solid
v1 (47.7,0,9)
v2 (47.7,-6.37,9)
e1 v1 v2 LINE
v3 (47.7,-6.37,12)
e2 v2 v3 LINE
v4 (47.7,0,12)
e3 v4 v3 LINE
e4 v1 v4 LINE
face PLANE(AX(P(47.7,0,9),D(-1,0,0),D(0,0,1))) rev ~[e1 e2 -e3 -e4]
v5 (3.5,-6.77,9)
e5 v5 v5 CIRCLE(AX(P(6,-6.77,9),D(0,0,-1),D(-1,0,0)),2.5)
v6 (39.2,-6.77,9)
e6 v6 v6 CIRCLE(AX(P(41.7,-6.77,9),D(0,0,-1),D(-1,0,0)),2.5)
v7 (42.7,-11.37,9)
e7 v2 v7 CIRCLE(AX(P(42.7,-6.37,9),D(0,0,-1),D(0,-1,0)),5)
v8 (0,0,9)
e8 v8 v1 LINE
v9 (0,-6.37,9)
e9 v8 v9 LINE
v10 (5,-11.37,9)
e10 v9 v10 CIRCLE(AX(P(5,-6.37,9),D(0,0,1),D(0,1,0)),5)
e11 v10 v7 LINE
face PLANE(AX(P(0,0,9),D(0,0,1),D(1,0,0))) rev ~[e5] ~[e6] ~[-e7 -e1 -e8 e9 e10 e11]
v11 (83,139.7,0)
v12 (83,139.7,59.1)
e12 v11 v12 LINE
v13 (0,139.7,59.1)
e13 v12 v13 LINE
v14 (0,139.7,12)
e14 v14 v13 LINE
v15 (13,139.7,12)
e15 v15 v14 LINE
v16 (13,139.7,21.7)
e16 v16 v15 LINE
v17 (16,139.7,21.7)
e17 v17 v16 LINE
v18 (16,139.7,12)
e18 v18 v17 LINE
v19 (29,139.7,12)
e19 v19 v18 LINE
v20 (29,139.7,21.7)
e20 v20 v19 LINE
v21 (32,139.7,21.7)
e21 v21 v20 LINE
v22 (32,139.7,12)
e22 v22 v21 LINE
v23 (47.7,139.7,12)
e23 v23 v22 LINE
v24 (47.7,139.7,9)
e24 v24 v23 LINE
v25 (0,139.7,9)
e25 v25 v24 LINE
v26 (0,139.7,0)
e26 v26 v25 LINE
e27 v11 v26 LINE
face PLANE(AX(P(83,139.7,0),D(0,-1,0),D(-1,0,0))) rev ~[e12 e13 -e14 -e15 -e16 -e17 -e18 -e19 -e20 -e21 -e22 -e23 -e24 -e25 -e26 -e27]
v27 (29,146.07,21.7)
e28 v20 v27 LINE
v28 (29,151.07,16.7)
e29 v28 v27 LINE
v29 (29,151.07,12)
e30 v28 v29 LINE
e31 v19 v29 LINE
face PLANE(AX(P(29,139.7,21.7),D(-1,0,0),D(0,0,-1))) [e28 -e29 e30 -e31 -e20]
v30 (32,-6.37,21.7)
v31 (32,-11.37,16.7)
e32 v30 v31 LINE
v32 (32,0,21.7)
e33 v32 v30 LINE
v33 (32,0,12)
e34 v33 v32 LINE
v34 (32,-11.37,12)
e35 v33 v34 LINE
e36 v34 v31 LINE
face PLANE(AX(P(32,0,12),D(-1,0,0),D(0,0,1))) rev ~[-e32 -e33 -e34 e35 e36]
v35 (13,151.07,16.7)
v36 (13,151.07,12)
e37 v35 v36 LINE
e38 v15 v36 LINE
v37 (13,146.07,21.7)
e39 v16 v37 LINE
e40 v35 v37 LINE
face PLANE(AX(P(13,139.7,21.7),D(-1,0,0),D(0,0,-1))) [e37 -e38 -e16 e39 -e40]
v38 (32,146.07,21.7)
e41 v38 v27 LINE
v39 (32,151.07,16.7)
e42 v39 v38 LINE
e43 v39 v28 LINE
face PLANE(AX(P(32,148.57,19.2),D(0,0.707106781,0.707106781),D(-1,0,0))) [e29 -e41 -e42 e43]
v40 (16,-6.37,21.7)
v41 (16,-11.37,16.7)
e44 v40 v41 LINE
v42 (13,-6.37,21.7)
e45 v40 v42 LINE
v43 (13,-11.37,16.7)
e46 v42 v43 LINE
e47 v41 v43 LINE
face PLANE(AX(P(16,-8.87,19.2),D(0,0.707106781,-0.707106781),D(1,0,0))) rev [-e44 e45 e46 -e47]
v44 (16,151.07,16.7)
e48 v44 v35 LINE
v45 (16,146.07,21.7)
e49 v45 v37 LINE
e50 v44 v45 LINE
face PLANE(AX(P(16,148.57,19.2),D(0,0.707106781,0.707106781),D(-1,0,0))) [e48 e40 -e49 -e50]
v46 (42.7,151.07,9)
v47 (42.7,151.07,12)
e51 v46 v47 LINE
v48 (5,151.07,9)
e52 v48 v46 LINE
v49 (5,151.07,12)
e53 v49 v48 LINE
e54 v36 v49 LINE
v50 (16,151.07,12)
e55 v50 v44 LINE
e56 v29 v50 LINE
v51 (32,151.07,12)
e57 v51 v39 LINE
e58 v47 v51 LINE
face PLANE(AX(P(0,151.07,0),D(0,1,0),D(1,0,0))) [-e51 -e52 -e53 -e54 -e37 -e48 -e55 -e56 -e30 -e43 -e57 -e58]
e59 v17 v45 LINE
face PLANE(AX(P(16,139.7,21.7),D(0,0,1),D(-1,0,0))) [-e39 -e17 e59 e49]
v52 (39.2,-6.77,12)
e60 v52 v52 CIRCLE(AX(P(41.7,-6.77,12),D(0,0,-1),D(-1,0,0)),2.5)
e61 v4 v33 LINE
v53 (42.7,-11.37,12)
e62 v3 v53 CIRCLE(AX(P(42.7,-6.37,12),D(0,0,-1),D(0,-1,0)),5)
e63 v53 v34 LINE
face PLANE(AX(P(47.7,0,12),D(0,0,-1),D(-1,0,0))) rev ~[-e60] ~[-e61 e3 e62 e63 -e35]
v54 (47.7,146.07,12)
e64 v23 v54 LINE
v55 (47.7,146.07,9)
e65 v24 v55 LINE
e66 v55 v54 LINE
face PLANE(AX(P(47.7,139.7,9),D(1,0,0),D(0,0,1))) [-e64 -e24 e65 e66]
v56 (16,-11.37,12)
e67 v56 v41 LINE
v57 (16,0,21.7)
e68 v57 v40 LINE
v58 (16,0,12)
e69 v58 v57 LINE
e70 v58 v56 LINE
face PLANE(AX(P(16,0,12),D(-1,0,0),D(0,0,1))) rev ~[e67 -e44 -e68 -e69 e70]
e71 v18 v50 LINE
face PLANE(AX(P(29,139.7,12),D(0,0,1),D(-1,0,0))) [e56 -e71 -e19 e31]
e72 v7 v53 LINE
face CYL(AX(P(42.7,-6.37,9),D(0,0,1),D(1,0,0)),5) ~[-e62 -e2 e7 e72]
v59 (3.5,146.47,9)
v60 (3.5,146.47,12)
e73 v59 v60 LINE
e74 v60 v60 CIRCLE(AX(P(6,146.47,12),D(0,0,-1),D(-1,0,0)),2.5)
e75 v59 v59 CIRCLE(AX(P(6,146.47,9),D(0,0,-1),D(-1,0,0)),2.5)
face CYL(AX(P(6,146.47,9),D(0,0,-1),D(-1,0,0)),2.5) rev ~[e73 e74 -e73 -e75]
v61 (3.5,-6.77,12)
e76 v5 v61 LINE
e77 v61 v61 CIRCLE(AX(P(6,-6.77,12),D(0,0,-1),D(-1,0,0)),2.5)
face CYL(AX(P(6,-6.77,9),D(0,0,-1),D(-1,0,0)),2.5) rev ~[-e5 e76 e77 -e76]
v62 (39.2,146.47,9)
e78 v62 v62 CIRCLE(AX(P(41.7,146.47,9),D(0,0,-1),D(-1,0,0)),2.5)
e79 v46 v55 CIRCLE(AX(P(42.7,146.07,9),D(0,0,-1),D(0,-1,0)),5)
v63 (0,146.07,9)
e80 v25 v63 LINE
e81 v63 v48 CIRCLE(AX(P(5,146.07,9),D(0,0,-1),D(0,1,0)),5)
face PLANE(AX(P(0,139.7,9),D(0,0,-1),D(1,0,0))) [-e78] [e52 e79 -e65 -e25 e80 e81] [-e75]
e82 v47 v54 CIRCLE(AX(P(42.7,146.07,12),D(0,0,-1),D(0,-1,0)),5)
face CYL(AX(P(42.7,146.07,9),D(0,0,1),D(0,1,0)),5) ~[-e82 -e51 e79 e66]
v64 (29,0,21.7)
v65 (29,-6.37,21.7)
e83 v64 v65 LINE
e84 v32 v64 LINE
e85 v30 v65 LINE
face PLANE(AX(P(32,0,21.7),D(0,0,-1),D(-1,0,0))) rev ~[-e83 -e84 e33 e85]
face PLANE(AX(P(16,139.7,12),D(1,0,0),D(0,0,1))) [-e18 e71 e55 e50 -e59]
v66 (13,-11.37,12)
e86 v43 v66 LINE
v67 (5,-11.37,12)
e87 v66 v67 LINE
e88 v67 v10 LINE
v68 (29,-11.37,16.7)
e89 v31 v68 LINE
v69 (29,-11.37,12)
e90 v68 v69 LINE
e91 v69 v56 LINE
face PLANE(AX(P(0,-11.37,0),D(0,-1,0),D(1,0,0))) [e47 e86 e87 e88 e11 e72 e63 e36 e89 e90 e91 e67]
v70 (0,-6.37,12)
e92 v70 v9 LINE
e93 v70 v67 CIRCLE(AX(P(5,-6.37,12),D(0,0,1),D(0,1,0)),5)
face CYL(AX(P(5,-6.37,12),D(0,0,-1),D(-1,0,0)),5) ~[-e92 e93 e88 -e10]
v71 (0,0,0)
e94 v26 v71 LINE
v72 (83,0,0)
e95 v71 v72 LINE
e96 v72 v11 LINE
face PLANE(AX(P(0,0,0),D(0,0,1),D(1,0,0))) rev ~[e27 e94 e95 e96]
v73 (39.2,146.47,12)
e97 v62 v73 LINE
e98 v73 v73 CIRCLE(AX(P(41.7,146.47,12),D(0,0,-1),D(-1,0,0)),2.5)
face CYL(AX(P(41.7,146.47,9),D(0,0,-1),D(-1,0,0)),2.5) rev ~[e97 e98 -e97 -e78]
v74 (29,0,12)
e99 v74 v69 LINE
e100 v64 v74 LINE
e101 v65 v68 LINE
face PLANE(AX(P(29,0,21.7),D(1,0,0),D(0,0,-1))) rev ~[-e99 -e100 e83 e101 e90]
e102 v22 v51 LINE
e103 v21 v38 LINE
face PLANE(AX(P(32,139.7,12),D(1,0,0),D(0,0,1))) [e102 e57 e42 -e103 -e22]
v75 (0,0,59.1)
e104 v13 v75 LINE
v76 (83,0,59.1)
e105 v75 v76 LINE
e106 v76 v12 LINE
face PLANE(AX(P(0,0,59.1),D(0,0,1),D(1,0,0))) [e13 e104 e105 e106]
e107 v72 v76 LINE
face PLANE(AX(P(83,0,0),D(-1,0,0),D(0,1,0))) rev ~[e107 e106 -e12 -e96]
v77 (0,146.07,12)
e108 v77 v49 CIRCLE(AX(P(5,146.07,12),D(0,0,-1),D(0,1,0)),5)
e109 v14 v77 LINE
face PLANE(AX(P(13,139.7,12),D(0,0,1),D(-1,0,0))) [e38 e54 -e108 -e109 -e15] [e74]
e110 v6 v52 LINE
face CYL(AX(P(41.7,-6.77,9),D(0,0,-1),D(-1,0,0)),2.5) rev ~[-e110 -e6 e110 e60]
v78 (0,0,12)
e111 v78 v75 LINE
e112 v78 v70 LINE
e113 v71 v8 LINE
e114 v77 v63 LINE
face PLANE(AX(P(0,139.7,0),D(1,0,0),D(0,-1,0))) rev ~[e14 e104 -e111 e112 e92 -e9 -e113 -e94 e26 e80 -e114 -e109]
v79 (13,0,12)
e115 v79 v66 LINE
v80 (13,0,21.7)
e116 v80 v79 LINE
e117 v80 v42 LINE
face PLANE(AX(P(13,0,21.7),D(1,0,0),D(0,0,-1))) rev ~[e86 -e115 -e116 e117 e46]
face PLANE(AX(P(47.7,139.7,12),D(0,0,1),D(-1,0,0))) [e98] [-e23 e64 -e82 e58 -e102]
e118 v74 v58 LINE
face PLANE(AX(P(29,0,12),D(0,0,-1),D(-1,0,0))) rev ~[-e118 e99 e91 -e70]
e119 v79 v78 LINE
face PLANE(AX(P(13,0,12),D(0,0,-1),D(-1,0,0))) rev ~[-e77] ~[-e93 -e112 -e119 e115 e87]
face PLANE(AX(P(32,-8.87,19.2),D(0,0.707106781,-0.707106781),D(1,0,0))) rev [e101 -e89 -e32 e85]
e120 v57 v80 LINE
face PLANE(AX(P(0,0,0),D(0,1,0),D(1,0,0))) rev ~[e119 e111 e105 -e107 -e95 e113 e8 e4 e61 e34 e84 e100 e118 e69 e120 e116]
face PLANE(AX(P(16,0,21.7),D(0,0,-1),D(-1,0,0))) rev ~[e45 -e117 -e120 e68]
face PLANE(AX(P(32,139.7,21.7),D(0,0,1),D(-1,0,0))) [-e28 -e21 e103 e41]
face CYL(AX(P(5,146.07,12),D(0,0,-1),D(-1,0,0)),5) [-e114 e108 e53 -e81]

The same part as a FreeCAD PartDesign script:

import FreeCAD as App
import Part
import Sketcher


def edges_at(feature, points):
    """Names of the edges that pass closest to the given points."""
    edges = feature.Shape.Edges
    near = lambda p: min(range(len(edges)), key=lambda i: edges[i].distToShape(Part.Vertex(*p))[0])
    return sorted({f"Edge{near(p) + 1}" for p in points})

doc = App.newDocument("Part")
body = doc.addObject("PartDesign::Body", "Body")

# Sketch on XY plane
sketch1 = doc.addObject("Sketcher::SketchObject", "Sketch")
body.addObject(sketch1)
sketch1.AttachmentSupport = (doc.XY_Plane, [""])
sketch1.MapMode = "FlatFace"
sketch1.addGeometry([
    Part.LineSegment(App.Vector(0, 140, 0), App.Vector(0, 0, 0)),
    Part.LineSegment(App.Vector(0, 0, 0), App.Vector(83, 0, 0)),
    Part.LineSegment(App.Vector(83, 0, 0), App.Vector(83, 140, 0)),
    Part.LineSegment(App.Vector(83, 140, 0), App.Vector(0, 140, 0)),
], False)
sketch1.addConstraint([
    Sketcher.Constraint("Coincident", 0, 2, 1, 1),
    Sketcher.Constraint("Coincident", 1, 2, 2, 1),
    Sketcher.Constraint("Coincident", 2, 2, 3, 1),
    Sketcher.Constraint("Coincident", 3, 2, 0, 1),
    Sketcher.Constraint("Vertical", 0),
    Sketcher.Constraint("Horizontal", 1),
    Sketcher.Constraint("Vertical", 2),
    Sketcher.Constraint("Horizontal", 3),
    Sketcher.Constraint("Coincident", 0, 2, -1, 1),
    Sketcher.Constraint("DistanceX", 1, 1, 1, 2, 83.0),
    Sketcher.Constraint("DistanceY", 0, 2, 0, 1, 139.7),
])
pad1 = doc.addObject("PartDesign::Pad", "Pad")
body.addObject(pad1)
pad1.Profile = sketch1
pad1.Length = 59.1

# Sketch on XZ plane
sketch2 = doc.addObject("Sketcher::SketchObject", "Sketch001")
body.addObject(sketch2)
sketch2.AttachmentSupport = (doc.XZ_Plane, [""])
sketch2.MapMode = "FlatFace"
sketch2.AttachmentOffset = App.Placement(App.Vector(0, 0, -139.7), App.Rotation())
sketch2.addGeometry([
    Part.LineSegment(App.Vector(47.7, 9, 0), App.Vector(0, 9, 0)),  # 0
    Part.LineSegment(App.Vector(0, 9, 0), App.Vector(0, 12, 0)),  # 1
    Part.LineSegment(App.Vector(0, 12, 0), App.Vector(13, 12, 0)),  # 2
    Part.LineSegment(App.Vector(13, 12, 0), App.Vector(13, 21.7, 0)),  # 3
    Part.LineSegment(App.Vector(13, 21.7, 0), App.Vector(16, 21.7, 0)),  # 4
    Part.LineSegment(App.Vector(16, 21.7, 0), App.Vector(16, 12, 0)),  # 5
    Part.LineSegment(App.Vector(16, 12, 0), App.Vector(29, 12, 0)),  # 6
    Part.LineSegment(App.Vector(29, 12, 0), App.Vector(29, 21.7, 0)),  # 7
    Part.LineSegment(App.Vector(29, 21.7, 0), App.Vector(32, 21.7, 0)),  # 8
    Part.LineSegment(App.Vector(32, 21.7, 0), App.Vector(32, 12, 0)),  # 9
    Part.LineSegment(App.Vector(32, 12, 0), App.Vector(47.7, 12, 0)),  # 10
    Part.LineSegment(App.Vector(47.7, 12, 0), App.Vector(47.7, 9, 0)),  # 11
], False)
sketch2.addConstraint([
    Sketcher.Constraint("Coincident", 0, 2, 1, 1),
    Sketcher.Constraint("Coincident", 1, 2, 2, 1),
    Sketcher.Constraint("Coincident", 2, 2, 3, 1),
    Sketcher.Constraint("Coincident", 3, 2, 4, 1),
    Sketcher.Constraint("Coincident", 4, 2, 5, 1),
    Sketcher.Constraint("Coincident", 5, 2, 6, 1),
    Sketcher.Constraint("Coincident", 6, 2, 7, 1),
    Sketcher.Constraint("Coincident", 7, 2, 8, 1),
    Sketcher.Constraint("Coincident", 8, 2, 9, 1),
    Sketcher.Constraint("Coincident", 9, 2, 10, 1),
    Sketcher.Constraint("Coincident", 10, 2, 11, 1),
    Sketcher.Constraint("Coincident", 11, 2, 0, 1),
    Sketcher.Constraint("Horizontal", 0),
    Sketcher.Constraint("Vertical", 1),
    Sketcher.Constraint("Horizontal", 2),
    Sketcher.Constraint("Vertical", 3),
    Sketcher.Constraint("Horizontal", 4),
    Sketcher.Constraint("Vertical", 5),
    Sketcher.Constraint("Horizontal", 6),
    Sketcher.Constraint("Vertical", 7),
    Sketcher.Constraint("Horizontal", 8),
    Sketcher.Constraint("Vertical", 9),
    Sketcher.Constraint("Horizontal", 10),
    Sketcher.Constraint("Vertical", 11),
    Sketcher.Constraint("PointOnObject", 0, 2, -2),
    Sketcher.Constraint("Horizontal", 2, 2, 5, 2),
    Sketcher.Constraint("Horizontal", 4, 2, 7, 2),
    Sketcher.Constraint("Horizontal", 6, 2, 9, 2),
    Sketcher.Constraint("Equal", 2, 6),
    Sketcher.Constraint("Equal", 4, 8),
    Sketcher.Constraint("Equal", 8, 1),
    Sketcher.Constraint("DistanceX", 2, 1, 2, 2, 13.0),
    Sketcher.Constraint("DistanceX", 4, 1, 4, 2, 3.0),
    Sketcher.Constraint("DistanceX", 0, 2, 0, 1, 47.7),
    Sketcher.Constraint("DistanceY", 3, 1, 3, 2, 9.7),
    Sketcher.Constraint("DistanceY", -1, 1, 0, 2, 9.0),
])
pad2 = doc.addObject("PartDesign::Pad", "Pad001")
body.addObject(pad2)
pad2.Profile = sketch2
pad2.Length = 11.37
pad2.Reversed = True

# Sketch on XZ plane
sketch3 = doc.addObject("Sketcher::SketchObject", "Sketch002")
body.addObject(sketch3)
sketch3.AttachmentSupport = (doc.XZ_Plane, [""])
sketch3.MapMode = "FlatFace"
sketch3.addGeometry([
    Part.LineSegment(App.Vector(0, 12, 0), App.Vector(0, 9, 0)),  # 0
    Part.LineSegment(App.Vector(0, 9, 0), App.Vector(47.7, 9, 0)),  # 1
    Part.LineSegment(App.Vector(47.7, 9, 0), App.Vector(47.7, 12, 0)),  # 2
    Part.LineSegment(App.Vector(47.7, 12, 0), App.Vector(32, 12, 0)),  # 3
    Part.LineSegment(App.Vector(32, 12, 0), App.Vector(32, 21.7, 0)),  # 4
    Part.LineSegment(App.Vector(32, 21.7, 0), App.Vector(29, 21.7, 0)),  # 5
    Part.LineSegment(App.Vector(29, 21.7, 0), App.Vector(29, 12, 0)),  # 6
    Part.LineSegment(App.Vector(29, 12, 0), App.Vector(16, 12, 0)),  # 7
    Part.LineSegment(App.Vector(16, 12, 0), App.Vector(16, 21.7, 0)),  # 8
    Part.LineSegment(App.Vector(16, 21.7, 0), App.Vector(13, 21.7, 0)),  # 9
    Part.LineSegment(App.Vector(13, 21.7, 0), App.Vector(13, 12, 0)),  # 10
    Part.LineSegment(App.Vector(13, 12, 0), App.Vector(0, 12, 0)),  # 11
], False)
sketch3.addConstraint([
    Sketcher.Constraint("Coincident", 0, 2, 1, 1),
    Sketcher.Constraint("Coincident", 1, 2, 2, 1),
    Sketcher.Constraint("Coincident", 2, 2, 3, 1),
    Sketcher.Constraint("Coincident", 3, 2, 4, 1),
    Sketcher.Constraint("Coincident", 4, 2, 5, 1),
    Sketcher.Constraint("Coincident", 5, 2, 6, 1),
    Sketcher.Constraint("Coincident", 6, 2, 7, 1),
    Sketcher.Constraint("Coincident", 7, 2, 8, 1),
    Sketcher.Constraint("Coincident", 8, 2, 9, 1),
    Sketcher.Constraint("Coincident", 9, 2, 10, 1),
    Sketcher.Constraint("Coincident", 10, 2, 11, 1),
    Sketcher.Constraint("Coincident", 11, 2, 0, 1),
    Sketcher.Constraint("Vertical", 0),
    Sketcher.Constraint("Horizontal", 1),
    Sketcher.Constraint("Vertical", 2),
    Sketcher.Constraint("Horizontal", 3),
    Sketcher.Constraint("Vertical", 4),
    Sketcher.Constraint("Horizontal", 5),
    Sketcher.Constraint("Vertical", 6),
    Sketcher.Constraint("Horizontal", 7),
    Sketcher.Constraint("Vertical", 8),
    Sketcher.Constraint("Horizontal", 9),
    Sketcher.Constraint("Vertical", 10),
    Sketcher.Constraint("Horizontal", 11),
    Sketcher.Constraint("PointOnObject", 0, 2, -2),
    Sketcher.Constraint("Horizontal", 3, 2, 6, 2),
    Sketcher.Constraint("Horizontal", 5, 2, 8, 2),
    Sketcher.Constraint("Horizontal", 7, 2, 10, 2),
    Sketcher.Constraint("Equal", 5, 9),
    Sketcher.Constraint("Equal", 7, 11),
    Sketcher.Constraint("Equal", 9, 0),
    Sketcher.Constraint("DistanceX", 5, 2, 5, 1, 3.0),
    Sketcher.Constraint("DistanceX", 7, 2, 7, 1, 13.0),
    Sketcher.Constraint("DistanceX", 1, 1, 1, 2, 47.7),
    Sketcher.Constraint("DistanceY", 4, 1, 4, 2, 9.7),
    Sketcher.Constraint("DistanceY", -1, 1, 0, 2, 9.0),
])
pad3 = doc.addObject("PartDesign::Pad", "Pad002")
body.addObject(pad3)
pad3.Profile = sketch3
pad3.Length = 11.37
doc.recompute()

fillet = doc.addObject("PartDesign::Fillet", "Fillet")
body.addObject(fillet)
fillet.Base = (pad3, edges_at(pad3, [
    (0, 151.07, 10.5),
    (47.7, 151.07, 10.5),
    (0, -11.37, 10.5),
    (47.7, -11.37, 10.5),
]))
fillet.Radius = 5
doc.recompute()

chamfer = doc.addObject("PartDesign::Chamfer", "Chamfer")
body.addObject(chamfer)
chamfer.Base = (fillet, edges_at(fillet, [
    (30.5, -11.37, 21.7),
    (14.5, -11.37, 21.7),
    (30.5, 151.07, 21.7),
    (14.5, 151.07, 21.7),
]))
chamfer.Size = 5

# Sketch on XY plane
sketch4 = doc.addObject("Sketcher::SketchObject", "Sketch003")
body.addObject(sketch4)
sketch4.AttachmentSupport = (doc.XY_Plane, [""])
sketch4.MapMode = "FlatFace"
sketch4.AttachmentOffset = App.Placement(App.Vector(0, 0, 9), App.Rotation())
sketch4.addGeometry([
    Part.Circle(App.Vector(41.7, 146.5, 0), App.Vector(0, 0, 1), 2.5),
    Part.Circle(App.Vector(6, 146.5, 0), App.Vector(0, 0, 1), 2.5),
    Part.Circle(App.Vector(41.7, -6.8, 0), App.Vector(0, 0, 1), 2.5),
    Part.Circle(App.Vector(6, -6.8, 0), App.Vector(0, 0, 1), 2.5),
], False)
sketch4.addConstraint([
    Sketcher.Constraint("Equal", 0, 1),
    Sketcher.Constraint("Equal", 1, 2),
    Sketcher.Constraint("Equal", 2, 3),
    Sketcher.Constraint("Horizontal", 0, 3, 1, 3),
    Sketcher.Constraint("Horizontal", 2, 3, 3, 3),
    Sketcher.Constraint("Vertical", 0, 3, 2, 3),
    Sketcher.Constraint("Vertical", 1, 3, 3, 3),
    Sketcher.Constraint("Diameter", 0, 5.0),
    Sketcher.Constraint("DistanceX", -1, 1, 1, 3, 6.0),
    Sketcher.Constraint("DistanceX", -1, 1, 0, 3, 41.7),
    Sketcher.Constraint("DistanceY", -1, 1, 0, 3, 146.47),
    Sketcher.Constraint("DistanceY", 2, 3, -1, 1, 6.77),
])
pocket1 = doc.addObject("PartDesign::Pocket", "Pocket")
body.addObject(pocket1)
pocket1.Profile = sketch4
pocket1.Type = "UpToFirst"
pocket1.Reversed = True

doc.recompute()
